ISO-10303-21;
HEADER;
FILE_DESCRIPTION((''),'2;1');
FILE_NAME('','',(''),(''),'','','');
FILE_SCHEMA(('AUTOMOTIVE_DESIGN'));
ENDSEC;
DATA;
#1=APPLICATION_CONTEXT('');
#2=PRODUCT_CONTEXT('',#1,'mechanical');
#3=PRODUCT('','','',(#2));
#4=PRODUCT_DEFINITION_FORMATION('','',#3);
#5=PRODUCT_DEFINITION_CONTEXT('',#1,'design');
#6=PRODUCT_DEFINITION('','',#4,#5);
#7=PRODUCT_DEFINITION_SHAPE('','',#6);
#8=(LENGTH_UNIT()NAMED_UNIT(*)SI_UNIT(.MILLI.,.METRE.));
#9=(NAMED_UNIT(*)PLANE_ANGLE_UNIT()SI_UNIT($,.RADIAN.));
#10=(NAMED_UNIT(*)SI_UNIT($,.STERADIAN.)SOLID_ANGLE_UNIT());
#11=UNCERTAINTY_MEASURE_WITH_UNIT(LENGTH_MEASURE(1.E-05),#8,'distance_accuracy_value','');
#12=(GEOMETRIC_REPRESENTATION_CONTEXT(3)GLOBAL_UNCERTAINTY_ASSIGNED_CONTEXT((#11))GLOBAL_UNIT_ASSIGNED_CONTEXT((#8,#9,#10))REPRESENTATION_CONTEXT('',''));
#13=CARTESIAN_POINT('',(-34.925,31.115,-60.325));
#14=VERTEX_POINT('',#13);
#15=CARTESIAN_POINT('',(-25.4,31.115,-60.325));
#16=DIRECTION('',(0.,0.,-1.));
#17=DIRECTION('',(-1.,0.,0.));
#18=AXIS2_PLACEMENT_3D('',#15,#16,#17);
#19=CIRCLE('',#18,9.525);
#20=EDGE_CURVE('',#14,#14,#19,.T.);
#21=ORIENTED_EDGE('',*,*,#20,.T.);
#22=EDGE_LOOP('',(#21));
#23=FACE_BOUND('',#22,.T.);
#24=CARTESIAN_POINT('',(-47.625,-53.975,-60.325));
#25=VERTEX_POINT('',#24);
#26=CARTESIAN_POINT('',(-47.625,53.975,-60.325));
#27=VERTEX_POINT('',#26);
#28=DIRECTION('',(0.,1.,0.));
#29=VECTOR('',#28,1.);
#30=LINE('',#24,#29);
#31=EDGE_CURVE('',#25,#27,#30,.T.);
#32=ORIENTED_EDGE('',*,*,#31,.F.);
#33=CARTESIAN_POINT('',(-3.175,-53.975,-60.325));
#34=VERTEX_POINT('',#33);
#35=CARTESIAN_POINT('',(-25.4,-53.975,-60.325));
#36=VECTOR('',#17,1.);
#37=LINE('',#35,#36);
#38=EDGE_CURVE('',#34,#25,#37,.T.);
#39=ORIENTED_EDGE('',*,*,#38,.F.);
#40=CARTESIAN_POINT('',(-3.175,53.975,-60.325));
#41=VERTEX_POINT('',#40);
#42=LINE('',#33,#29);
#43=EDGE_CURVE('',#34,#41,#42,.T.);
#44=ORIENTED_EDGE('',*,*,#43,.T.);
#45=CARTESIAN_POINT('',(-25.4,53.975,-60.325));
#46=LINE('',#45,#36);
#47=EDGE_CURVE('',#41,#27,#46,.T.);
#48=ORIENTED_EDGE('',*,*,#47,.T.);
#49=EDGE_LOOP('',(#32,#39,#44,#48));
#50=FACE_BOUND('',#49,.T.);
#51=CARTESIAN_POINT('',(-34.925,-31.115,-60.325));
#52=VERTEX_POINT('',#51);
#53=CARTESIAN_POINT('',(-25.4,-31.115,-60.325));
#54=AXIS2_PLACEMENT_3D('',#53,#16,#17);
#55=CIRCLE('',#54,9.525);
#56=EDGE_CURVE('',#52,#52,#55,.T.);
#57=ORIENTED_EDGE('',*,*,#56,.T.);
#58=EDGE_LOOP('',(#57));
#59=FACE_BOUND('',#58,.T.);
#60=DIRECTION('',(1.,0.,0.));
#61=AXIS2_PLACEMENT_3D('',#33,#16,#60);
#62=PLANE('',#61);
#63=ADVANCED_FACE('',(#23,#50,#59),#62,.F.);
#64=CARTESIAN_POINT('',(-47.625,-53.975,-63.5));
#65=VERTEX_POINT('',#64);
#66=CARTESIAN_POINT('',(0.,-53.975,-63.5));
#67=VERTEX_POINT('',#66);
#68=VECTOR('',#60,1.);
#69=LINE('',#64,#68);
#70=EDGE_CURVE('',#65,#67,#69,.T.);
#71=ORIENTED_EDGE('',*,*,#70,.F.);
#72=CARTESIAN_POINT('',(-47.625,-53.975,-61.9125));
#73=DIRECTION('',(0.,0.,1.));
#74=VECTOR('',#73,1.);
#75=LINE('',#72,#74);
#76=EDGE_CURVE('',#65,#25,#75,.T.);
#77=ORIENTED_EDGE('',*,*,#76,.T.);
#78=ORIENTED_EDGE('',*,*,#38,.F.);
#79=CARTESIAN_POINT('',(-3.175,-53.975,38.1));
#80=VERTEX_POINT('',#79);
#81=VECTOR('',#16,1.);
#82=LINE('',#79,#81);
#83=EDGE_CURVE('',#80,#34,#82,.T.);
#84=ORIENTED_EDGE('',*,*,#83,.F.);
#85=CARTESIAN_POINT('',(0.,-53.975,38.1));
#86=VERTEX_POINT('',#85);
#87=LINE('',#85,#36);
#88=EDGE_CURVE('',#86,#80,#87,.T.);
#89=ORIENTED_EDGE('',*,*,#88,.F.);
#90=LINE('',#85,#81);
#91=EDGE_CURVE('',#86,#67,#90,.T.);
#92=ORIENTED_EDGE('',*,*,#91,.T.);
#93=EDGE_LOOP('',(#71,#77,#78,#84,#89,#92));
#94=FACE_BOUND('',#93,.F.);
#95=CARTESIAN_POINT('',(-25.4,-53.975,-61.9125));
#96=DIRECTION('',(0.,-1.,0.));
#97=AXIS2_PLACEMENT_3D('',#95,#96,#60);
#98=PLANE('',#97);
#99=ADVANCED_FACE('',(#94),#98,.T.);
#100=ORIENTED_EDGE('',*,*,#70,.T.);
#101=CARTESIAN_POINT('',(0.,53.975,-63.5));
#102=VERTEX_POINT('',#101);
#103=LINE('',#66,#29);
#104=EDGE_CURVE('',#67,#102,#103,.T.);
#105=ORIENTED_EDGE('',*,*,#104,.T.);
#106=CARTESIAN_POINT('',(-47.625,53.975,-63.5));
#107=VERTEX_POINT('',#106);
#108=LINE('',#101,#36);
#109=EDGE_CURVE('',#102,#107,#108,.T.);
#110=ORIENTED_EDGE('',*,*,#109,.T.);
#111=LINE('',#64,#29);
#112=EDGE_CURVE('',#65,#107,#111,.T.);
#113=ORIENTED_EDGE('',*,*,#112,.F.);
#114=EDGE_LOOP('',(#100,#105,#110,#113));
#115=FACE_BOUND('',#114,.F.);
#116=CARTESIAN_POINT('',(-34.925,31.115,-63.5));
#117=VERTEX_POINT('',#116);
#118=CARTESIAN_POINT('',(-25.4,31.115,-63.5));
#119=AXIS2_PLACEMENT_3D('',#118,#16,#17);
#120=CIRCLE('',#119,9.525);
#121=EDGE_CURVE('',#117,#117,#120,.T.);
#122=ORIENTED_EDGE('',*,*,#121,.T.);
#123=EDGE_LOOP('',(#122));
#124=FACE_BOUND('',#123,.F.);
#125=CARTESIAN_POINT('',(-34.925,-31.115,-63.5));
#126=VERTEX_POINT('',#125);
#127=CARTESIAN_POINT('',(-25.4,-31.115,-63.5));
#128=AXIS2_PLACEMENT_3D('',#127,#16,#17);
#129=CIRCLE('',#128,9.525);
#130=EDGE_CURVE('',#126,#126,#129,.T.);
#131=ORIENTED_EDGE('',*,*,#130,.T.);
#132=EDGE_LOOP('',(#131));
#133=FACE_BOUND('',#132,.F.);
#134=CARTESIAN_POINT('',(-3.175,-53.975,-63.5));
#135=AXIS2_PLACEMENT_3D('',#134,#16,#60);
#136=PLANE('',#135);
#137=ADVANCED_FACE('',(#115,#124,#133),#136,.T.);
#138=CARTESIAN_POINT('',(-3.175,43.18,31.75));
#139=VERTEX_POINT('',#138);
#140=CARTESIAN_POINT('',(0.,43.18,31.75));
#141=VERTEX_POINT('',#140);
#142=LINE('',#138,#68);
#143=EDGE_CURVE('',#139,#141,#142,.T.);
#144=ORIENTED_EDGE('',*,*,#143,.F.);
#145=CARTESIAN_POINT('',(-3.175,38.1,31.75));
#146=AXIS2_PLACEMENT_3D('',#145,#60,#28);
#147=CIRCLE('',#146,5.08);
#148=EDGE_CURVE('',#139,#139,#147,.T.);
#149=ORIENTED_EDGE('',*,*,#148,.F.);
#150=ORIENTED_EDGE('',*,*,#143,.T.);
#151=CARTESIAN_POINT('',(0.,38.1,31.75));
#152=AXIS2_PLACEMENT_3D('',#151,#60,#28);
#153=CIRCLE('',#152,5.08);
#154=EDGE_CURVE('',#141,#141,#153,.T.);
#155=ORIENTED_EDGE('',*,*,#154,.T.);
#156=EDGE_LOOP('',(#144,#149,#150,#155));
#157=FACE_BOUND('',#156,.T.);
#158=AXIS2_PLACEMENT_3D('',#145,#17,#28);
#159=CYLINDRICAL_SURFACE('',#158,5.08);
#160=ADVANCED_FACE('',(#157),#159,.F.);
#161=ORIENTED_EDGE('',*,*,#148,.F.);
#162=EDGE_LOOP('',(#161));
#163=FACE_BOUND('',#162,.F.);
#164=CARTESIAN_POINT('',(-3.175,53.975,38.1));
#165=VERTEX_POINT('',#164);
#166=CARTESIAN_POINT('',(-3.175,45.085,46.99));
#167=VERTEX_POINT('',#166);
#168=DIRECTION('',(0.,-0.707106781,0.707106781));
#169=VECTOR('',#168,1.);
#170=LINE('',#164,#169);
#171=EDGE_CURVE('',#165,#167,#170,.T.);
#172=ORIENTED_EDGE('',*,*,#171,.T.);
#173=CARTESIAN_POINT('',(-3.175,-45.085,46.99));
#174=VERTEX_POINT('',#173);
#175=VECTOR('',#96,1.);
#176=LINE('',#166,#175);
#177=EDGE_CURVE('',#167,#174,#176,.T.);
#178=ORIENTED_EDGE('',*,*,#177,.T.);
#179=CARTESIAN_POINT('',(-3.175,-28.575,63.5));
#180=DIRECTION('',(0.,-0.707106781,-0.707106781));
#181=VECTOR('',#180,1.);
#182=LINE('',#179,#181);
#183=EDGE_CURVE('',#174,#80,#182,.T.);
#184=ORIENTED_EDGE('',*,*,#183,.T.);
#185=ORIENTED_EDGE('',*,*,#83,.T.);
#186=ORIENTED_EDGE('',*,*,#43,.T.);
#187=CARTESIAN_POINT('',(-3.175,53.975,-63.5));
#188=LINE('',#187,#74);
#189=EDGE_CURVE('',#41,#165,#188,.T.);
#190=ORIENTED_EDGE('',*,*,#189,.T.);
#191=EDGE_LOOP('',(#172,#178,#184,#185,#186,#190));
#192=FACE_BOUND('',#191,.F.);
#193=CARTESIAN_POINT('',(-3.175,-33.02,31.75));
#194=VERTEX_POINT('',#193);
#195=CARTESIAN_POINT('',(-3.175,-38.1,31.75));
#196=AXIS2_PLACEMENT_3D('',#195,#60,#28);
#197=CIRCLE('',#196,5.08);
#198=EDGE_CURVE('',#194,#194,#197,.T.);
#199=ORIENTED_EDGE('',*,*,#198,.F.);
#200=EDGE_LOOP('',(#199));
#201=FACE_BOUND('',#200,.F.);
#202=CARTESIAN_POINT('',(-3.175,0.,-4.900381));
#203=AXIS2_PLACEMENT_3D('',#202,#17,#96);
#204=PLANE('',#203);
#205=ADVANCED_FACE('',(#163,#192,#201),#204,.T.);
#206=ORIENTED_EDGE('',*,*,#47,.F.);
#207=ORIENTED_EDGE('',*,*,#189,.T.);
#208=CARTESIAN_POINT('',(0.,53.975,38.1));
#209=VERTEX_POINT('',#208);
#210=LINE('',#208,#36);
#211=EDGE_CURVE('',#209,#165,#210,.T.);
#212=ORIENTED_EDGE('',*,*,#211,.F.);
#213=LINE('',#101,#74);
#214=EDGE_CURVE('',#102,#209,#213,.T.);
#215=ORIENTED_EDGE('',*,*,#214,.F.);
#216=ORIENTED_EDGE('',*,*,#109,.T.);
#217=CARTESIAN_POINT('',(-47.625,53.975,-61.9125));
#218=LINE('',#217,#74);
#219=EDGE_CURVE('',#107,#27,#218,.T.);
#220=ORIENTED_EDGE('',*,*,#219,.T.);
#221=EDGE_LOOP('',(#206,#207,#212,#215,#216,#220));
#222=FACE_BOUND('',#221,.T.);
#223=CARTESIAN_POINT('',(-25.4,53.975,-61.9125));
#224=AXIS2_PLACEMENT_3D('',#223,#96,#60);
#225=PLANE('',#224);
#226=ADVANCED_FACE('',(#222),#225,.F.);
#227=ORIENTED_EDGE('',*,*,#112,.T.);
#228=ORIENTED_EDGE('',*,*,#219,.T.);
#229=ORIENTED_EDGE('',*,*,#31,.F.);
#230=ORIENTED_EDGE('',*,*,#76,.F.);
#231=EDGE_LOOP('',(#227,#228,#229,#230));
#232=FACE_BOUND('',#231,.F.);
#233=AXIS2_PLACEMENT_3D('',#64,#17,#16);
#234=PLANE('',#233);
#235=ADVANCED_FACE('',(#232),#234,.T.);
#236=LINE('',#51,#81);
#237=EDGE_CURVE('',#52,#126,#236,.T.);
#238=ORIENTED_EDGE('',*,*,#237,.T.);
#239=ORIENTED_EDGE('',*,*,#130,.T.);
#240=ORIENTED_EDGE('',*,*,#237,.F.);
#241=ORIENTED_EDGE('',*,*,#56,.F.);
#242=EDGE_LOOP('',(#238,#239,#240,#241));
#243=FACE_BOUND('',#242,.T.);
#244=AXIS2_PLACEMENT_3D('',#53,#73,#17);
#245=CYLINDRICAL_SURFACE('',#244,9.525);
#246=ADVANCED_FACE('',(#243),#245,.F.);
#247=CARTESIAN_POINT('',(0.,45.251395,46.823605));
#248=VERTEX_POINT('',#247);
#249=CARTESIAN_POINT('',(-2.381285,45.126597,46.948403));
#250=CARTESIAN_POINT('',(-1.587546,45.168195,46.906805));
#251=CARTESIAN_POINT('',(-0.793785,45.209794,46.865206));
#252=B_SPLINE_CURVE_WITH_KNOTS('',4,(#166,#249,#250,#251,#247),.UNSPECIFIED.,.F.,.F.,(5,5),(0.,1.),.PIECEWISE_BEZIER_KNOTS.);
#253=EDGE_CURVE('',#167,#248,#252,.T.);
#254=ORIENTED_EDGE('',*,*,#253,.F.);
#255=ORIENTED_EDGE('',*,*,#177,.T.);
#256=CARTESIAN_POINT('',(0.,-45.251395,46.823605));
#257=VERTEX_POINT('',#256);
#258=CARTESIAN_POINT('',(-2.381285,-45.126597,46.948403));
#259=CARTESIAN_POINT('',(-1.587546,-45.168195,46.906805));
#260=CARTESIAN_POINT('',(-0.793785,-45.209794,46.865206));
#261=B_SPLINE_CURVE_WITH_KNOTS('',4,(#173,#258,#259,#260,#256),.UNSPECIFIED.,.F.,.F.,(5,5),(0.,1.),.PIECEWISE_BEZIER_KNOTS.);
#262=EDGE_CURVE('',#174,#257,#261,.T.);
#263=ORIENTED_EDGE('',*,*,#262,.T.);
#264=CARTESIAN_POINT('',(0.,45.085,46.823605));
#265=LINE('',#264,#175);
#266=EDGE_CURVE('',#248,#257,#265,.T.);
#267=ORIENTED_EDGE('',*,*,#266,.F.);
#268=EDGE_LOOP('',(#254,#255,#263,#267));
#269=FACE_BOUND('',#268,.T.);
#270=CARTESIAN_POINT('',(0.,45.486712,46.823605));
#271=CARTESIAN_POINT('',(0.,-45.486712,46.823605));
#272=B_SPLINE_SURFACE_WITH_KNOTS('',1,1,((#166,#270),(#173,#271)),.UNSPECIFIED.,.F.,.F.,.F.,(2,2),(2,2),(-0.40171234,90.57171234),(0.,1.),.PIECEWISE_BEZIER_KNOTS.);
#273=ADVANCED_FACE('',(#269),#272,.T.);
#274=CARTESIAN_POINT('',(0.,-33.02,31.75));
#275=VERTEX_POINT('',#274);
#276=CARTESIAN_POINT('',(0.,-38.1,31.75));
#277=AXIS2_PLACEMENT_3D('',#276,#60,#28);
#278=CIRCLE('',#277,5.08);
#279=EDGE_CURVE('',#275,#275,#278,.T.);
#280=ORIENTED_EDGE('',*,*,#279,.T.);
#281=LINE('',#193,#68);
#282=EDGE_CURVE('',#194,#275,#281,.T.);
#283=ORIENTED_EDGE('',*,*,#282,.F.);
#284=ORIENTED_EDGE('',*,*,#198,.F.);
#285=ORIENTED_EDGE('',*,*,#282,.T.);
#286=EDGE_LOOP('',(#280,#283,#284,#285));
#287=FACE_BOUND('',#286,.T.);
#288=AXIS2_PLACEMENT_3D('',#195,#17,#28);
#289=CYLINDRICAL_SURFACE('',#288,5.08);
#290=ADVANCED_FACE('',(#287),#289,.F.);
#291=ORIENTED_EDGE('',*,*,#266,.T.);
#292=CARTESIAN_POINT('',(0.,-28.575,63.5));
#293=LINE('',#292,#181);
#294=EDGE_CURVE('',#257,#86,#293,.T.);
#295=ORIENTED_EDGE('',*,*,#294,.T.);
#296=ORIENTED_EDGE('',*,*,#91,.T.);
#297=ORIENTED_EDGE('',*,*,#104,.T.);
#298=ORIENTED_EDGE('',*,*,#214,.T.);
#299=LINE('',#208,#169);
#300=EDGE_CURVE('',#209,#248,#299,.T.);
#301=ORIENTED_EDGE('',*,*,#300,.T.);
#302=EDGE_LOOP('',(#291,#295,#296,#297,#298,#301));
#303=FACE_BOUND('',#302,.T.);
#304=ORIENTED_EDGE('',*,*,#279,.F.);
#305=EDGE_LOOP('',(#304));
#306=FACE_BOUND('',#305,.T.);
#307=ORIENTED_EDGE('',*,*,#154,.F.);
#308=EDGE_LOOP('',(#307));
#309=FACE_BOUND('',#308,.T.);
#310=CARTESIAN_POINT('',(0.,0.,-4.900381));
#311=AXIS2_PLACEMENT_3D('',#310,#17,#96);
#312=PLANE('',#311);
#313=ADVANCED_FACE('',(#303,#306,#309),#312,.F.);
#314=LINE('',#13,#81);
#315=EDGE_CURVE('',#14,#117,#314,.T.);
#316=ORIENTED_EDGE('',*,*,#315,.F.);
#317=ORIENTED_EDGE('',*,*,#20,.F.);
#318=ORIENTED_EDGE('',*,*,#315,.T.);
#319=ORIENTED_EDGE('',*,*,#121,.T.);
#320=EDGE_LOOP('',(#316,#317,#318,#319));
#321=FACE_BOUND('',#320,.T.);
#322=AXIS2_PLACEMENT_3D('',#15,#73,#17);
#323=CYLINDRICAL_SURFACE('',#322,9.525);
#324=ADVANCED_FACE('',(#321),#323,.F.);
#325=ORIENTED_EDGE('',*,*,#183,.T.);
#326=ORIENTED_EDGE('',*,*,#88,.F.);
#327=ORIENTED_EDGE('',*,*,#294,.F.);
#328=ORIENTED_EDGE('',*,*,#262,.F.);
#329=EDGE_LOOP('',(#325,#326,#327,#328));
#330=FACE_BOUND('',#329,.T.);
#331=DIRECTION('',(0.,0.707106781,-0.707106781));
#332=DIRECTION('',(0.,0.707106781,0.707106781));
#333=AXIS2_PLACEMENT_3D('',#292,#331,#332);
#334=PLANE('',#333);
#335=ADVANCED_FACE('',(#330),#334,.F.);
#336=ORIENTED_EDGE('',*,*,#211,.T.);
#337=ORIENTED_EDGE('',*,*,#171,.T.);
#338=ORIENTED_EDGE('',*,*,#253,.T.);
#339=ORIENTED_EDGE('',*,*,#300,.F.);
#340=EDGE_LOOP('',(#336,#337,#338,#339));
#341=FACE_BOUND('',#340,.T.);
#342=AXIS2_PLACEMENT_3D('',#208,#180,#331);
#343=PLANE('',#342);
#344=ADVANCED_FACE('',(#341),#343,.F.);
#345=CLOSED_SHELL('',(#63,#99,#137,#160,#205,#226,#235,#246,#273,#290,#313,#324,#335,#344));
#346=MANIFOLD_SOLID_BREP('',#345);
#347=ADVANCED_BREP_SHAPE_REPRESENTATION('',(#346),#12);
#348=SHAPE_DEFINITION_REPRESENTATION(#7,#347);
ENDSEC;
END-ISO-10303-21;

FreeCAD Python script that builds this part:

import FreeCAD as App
import Part
import Sketcher

V = App.Vector
Q = App.Units.Quantity


def add_polygon(sketch, points):
    """Adds a closed chain of lines whose ends are joined by coincident constraints."""
    first, n = sketch.GeometryCount, len(points)
    for a, b in zip(points, points[1:] + points[:1]):
        sketch.addGeometry(Part.LineSegment(App.Vector(*a, 0), App.Vector(*b, 0)), False)
    for i in range(n):
        sketch.addConstraint(Sketcher.Constraint("Coincident", first + i, 2, first + (i + 1) % n, 1))

doc = App.newDocument("Part")
body = doc.addObject("PartDesign::Body", "Body")

sketch1 = doc.addObject("Sketcher::SketchObject", "Sketch")
body.addObject(sketch1)
sketch1.AttachmentSupport = (doc.YZ_Plane, [""])
sketch1.MapMode = "FlatFace"
add_polygon(sketch1, [(54, 38), (29, 64), (-29, 64), (-54, 38), (-54, -64), (54, -64)])
sketch1.addConstraint(Sketcher.Constraint("Horizontal", 1))
sketch1.addConstraint(Sketcher.Constraint("Vertical", 3))
sketch1.addConstraint(Sketcher.Constraint("Horizontal", 4))
sketch1.addConstraint(Sketcher.Constraint("Vertical", 5))
sketch1.addConstraint(Sketcher.Constraint("Symmetric", 2, 2, 5, 2, -2))
sketch1.addConstraint(Sketcher.Constraint("Perpendicular", 0, 2))
sketch1.addConstraint(Sketcher.Constraint("Equal", 0, 2))
sketch1.addConstraint(Sketcher.Constraint("DistanceY", 3, 2, 3, 1, Q("4 in")))
sketch1.addConstraint(Sketcher.Constraint("DistanceX", 2, 2, 1, 2, Q("1 in")))
sketch1.addConstraint(Sketcher.Constraint("DistanceX", 1, 2, 1, 1, Q("2.25 in")))
sketch1.addConstraint(Sketcher.Constraint("DistanceY", -1, 1, 0, 2, Q("2.5 in")))
pad1 = doc.addObject("PartDesign::Pad", "Pad")
body.addObject(pad1)
pad1.Profile = sketch1
pad1.Length = Q("0.125 in")

sketch2 = doc.addObject("Sketcher::SketchObject", "Sketch001")
body.addObject(sketch2)
sketch2.AttachmentSupport = (doc.XZ_Plane, [""])
sketch2.MapMode = "FlatFace"
sketch2.AttachmentOffset = App.Placement(V(0, 0, 2.125 * 25.4), App.Rotation())
add_polygon(sketch2, [(3.2, -60.3), (3.2, -63.5), (47.6, -63.5), (47.6, -60.3)])
sketch2.addConstraint(Sketcher.Constraint("Vertical", 0))
sketch2.addConstraint(Sketcher.Constraint("Horizontal", 1))
sketch2.addConstraint(Sketcher.Constraint("Vertical", 2))
sketch2.addConstraint(Sketcher.Constraint("Horizontal", 3))
sketch2.addConstraint(Sketcher.Constraint("DistanceX", 1, 1, 1, 2, Q("1.75 in")))
sketch2.addConstraint(Sketcher.Constraint("DistanceY", 0, 2, -1, 1, Q("2.5 in")))
sketch2.addConstraint(Sketcher.Constraint("DistanceY", 0, 2, 0, 1, Q("0.125 in")))
sketch2.addConstraint(Sketcher.Constraint("DistanceX", -1, 1, 0, 2, Q("0.125 in")))
pad2 = doc.addObject("PartDesign::Pad", "Pad001")
body.addObject(pad2)
pad2.Profile = sketch2
pad2.Length = Q("4.25 in")
pad2.Reversed = True

sketch3 = doc.addObject("Sketcher::SketchObject", "Sketch002")
body.addObject(sketch3)
sketch3.AttachmentSupport = (doc.YZ_Plane, [""])
sketch3.MapMode = "FlatFace"
sketch3.AttachmentOffset = App.Placement(V(0, 0, 0.125 * 25.4), App.Rotation())
sketch3.addGeometry(Part.Circle(V(-38, 32, 0), V(0, 0, 1), 5), False)
sketch3.addGeometry(Part.Circle(V(38, 32, 0), V(0, 0, 1), 5), False)
sketch3.addConstraint(Sketcher.Constraint("Equal", 0, 1))
sketch3.addConstraint(Sketcher.Constraint("Symmetric", 0, 3, 1, 3, -2))
sketch3.addConstraint(Sketcher.Constraint("Diameter", 0, Q("0.4 in")))
sketch3.addConstraint(Sketcher.Constraint("DistanceX", 0, 3, 1, 3, Q("3 in")))
sketch3.addConstraint(Sketcher.Constraint("DistanceY", -1, 1, 0, 3, Q("1.25 in")))
pocket1 = doc.addObject("PartDesign::Pocket", "Pocket")
body.addObject(pocket1)
pocket1.Profile = sketch3
pocket1.Type = "ThroughAll"

sketch4 = doc.addObject("Sketcher::SketchObject", "Sketch003")
body.addObject(sketch4)
sketch4.AttachmentSupport = (doc.XY_Plane, [""])
sketch4.MapMode = "FlatFace"
sketch4.AttachmentOffset = App.Placement(V(0, 0, -2.375 * 25.4), App.Rotation())
sketch4.addGeometry(Part.Circle(V(25, 31, 0), V(0, 0, 1), 10), False)
sketch4.addGeometry(Part.Circle(V(25, -31, 0), V(0, 0, 1), 10), False)
sketch4.addConstraint(Sketcher.Constraint("Equal", 0, 1))
sketch4.addConstraint(Sketcher.Constraint("Symmetric", 0, 3, 1, 3, -1))
sketch4.addConstraint(Sketcher.Constraint("Diameter", 0, Q("0.75 in")))
sketch4.addConstraint(Sketcher.Constraint("DistanceX", -1, 1, 0, 3, Q("1 in")))
sketch4.addConstraint(Sketcher.Constraint("DistanceY", 1, 3, 0, 3, Q("2.45 in")))
pocket2 = doc.addObject("PartDesign::Pocket", "Pocket001")
body.addObject(pocket2)
pocket2.Profile = sketch4
pocket2.Type = "ThroughAll"

sketch5 = doc.addObject("Sketcher::SketchObject", "Sketch004")
body.addObject(sketch5)
sketch5.AttachmentSupport = (doc.XY_Plane, [""])
sketch5.MapMode = "FlatFace"
sketch5.AttachmentOffset = App.Placement(V(0, 0, -2.375 * 25.4), App.Rotation())
sketch5.addGeometry(Part.Circle(V(25, 31, 0), V(0, 0, 1), 10), False)
sketch5.addGeometry(Part.Circle(V(25, -31, 0), V(0, 0, 1), 10), False)
sketch5.addConstraint(Sketcher.Constraint("Equal", 0, 1))
sketch5.addConstraint(Sketcher.Constraint("Symmetric", 0, 3, 1, 3, -1))
sketch5.addConstraint(Sketcher.Constraint("Diameter", 0, Q("0.75 in")))
sketch5.addConstraint(Sketcher.Constraint("DistanceX", -1, 1, 0, 3, Q("1 in")))
sketch5.addConstraint(Sketcher.Constraint("DistanceY", 1, 3, 0, 3, Q("2.45 in")))
pocket3 = doc.addObject("PartDesign::Pocket", "Pocket002")
body.addObject(pocket3)
pocket3.Profile = sketch5
pocket3.Type = "ThroughAll"
body2 = doc.addObject("PartDesign::Body", "Body001")
doc.recompute()

mirroring = doc.addObject("Part::Mirroring", "Mirroring")
mirroring.Source = body
mirroring.Base = V(0, 0, 0)
mirroring.Normal = V(1, 0, 0)
body2.BaseFeature = mirroring
doc.recompute()

sketch6 = doc.addObject("Sketcher::SketchObject", "Sketch005")
body2.addObject(sketch6)
sketch6.AttachmentSupport = (doc.getObject("YZ_Plane001"), [""])
sketch6.MapMode = "FlatFace"
sketch6.AttachmentOffset = App.Placement(V(0, 0, -0.125 * 25.4), App.Rotation())
add_polygon(sketch6, [(-29, 64), (29, 64), (45, 47), (-45, 47)])
sketch6.addConstraint(Sketcher.Constraint("Horizontal", 0))
sketch6.addConstraint(Sketcher.Constraint("Horizontal", 2))
sketch6.addConstraint(Sketcher.Constraint("Perpendicular", 1, 3))
sketch6.addConstraint(Sketcher.Constraint("Equal", 1, 3))
sketch6.addConstraint(Sketcher.Constraint("DistanceX", 0, 1, 0, 2, Q("2.25 in")))
sketch6.addConstraint(Sketcher.Constraint("DistanceX", 2, 2, 2, 1, Q("3.55 in")))
sketch6.addConstraint(Sketcher.Constraint("DistanceY", -1, 1, 0, 2, Q("2.5 in")))
sketch6.addConstraint(Sketcher.Constraint("DistanceX", -1, 1, 0, 2, Q("1.125 in")))
pocket4 = doc.addObject("PartDesign::Pocket", "Pocket003")
body2.addObject(pocket4)
pocket4.Profile = sketch6
pocket4.Type = "ThroughAll"
pocket4.Reversed = True
pocket4.TaperAngle = 3
body.Visibility = False
mirroring.Visibility = False

doc.recompute()
